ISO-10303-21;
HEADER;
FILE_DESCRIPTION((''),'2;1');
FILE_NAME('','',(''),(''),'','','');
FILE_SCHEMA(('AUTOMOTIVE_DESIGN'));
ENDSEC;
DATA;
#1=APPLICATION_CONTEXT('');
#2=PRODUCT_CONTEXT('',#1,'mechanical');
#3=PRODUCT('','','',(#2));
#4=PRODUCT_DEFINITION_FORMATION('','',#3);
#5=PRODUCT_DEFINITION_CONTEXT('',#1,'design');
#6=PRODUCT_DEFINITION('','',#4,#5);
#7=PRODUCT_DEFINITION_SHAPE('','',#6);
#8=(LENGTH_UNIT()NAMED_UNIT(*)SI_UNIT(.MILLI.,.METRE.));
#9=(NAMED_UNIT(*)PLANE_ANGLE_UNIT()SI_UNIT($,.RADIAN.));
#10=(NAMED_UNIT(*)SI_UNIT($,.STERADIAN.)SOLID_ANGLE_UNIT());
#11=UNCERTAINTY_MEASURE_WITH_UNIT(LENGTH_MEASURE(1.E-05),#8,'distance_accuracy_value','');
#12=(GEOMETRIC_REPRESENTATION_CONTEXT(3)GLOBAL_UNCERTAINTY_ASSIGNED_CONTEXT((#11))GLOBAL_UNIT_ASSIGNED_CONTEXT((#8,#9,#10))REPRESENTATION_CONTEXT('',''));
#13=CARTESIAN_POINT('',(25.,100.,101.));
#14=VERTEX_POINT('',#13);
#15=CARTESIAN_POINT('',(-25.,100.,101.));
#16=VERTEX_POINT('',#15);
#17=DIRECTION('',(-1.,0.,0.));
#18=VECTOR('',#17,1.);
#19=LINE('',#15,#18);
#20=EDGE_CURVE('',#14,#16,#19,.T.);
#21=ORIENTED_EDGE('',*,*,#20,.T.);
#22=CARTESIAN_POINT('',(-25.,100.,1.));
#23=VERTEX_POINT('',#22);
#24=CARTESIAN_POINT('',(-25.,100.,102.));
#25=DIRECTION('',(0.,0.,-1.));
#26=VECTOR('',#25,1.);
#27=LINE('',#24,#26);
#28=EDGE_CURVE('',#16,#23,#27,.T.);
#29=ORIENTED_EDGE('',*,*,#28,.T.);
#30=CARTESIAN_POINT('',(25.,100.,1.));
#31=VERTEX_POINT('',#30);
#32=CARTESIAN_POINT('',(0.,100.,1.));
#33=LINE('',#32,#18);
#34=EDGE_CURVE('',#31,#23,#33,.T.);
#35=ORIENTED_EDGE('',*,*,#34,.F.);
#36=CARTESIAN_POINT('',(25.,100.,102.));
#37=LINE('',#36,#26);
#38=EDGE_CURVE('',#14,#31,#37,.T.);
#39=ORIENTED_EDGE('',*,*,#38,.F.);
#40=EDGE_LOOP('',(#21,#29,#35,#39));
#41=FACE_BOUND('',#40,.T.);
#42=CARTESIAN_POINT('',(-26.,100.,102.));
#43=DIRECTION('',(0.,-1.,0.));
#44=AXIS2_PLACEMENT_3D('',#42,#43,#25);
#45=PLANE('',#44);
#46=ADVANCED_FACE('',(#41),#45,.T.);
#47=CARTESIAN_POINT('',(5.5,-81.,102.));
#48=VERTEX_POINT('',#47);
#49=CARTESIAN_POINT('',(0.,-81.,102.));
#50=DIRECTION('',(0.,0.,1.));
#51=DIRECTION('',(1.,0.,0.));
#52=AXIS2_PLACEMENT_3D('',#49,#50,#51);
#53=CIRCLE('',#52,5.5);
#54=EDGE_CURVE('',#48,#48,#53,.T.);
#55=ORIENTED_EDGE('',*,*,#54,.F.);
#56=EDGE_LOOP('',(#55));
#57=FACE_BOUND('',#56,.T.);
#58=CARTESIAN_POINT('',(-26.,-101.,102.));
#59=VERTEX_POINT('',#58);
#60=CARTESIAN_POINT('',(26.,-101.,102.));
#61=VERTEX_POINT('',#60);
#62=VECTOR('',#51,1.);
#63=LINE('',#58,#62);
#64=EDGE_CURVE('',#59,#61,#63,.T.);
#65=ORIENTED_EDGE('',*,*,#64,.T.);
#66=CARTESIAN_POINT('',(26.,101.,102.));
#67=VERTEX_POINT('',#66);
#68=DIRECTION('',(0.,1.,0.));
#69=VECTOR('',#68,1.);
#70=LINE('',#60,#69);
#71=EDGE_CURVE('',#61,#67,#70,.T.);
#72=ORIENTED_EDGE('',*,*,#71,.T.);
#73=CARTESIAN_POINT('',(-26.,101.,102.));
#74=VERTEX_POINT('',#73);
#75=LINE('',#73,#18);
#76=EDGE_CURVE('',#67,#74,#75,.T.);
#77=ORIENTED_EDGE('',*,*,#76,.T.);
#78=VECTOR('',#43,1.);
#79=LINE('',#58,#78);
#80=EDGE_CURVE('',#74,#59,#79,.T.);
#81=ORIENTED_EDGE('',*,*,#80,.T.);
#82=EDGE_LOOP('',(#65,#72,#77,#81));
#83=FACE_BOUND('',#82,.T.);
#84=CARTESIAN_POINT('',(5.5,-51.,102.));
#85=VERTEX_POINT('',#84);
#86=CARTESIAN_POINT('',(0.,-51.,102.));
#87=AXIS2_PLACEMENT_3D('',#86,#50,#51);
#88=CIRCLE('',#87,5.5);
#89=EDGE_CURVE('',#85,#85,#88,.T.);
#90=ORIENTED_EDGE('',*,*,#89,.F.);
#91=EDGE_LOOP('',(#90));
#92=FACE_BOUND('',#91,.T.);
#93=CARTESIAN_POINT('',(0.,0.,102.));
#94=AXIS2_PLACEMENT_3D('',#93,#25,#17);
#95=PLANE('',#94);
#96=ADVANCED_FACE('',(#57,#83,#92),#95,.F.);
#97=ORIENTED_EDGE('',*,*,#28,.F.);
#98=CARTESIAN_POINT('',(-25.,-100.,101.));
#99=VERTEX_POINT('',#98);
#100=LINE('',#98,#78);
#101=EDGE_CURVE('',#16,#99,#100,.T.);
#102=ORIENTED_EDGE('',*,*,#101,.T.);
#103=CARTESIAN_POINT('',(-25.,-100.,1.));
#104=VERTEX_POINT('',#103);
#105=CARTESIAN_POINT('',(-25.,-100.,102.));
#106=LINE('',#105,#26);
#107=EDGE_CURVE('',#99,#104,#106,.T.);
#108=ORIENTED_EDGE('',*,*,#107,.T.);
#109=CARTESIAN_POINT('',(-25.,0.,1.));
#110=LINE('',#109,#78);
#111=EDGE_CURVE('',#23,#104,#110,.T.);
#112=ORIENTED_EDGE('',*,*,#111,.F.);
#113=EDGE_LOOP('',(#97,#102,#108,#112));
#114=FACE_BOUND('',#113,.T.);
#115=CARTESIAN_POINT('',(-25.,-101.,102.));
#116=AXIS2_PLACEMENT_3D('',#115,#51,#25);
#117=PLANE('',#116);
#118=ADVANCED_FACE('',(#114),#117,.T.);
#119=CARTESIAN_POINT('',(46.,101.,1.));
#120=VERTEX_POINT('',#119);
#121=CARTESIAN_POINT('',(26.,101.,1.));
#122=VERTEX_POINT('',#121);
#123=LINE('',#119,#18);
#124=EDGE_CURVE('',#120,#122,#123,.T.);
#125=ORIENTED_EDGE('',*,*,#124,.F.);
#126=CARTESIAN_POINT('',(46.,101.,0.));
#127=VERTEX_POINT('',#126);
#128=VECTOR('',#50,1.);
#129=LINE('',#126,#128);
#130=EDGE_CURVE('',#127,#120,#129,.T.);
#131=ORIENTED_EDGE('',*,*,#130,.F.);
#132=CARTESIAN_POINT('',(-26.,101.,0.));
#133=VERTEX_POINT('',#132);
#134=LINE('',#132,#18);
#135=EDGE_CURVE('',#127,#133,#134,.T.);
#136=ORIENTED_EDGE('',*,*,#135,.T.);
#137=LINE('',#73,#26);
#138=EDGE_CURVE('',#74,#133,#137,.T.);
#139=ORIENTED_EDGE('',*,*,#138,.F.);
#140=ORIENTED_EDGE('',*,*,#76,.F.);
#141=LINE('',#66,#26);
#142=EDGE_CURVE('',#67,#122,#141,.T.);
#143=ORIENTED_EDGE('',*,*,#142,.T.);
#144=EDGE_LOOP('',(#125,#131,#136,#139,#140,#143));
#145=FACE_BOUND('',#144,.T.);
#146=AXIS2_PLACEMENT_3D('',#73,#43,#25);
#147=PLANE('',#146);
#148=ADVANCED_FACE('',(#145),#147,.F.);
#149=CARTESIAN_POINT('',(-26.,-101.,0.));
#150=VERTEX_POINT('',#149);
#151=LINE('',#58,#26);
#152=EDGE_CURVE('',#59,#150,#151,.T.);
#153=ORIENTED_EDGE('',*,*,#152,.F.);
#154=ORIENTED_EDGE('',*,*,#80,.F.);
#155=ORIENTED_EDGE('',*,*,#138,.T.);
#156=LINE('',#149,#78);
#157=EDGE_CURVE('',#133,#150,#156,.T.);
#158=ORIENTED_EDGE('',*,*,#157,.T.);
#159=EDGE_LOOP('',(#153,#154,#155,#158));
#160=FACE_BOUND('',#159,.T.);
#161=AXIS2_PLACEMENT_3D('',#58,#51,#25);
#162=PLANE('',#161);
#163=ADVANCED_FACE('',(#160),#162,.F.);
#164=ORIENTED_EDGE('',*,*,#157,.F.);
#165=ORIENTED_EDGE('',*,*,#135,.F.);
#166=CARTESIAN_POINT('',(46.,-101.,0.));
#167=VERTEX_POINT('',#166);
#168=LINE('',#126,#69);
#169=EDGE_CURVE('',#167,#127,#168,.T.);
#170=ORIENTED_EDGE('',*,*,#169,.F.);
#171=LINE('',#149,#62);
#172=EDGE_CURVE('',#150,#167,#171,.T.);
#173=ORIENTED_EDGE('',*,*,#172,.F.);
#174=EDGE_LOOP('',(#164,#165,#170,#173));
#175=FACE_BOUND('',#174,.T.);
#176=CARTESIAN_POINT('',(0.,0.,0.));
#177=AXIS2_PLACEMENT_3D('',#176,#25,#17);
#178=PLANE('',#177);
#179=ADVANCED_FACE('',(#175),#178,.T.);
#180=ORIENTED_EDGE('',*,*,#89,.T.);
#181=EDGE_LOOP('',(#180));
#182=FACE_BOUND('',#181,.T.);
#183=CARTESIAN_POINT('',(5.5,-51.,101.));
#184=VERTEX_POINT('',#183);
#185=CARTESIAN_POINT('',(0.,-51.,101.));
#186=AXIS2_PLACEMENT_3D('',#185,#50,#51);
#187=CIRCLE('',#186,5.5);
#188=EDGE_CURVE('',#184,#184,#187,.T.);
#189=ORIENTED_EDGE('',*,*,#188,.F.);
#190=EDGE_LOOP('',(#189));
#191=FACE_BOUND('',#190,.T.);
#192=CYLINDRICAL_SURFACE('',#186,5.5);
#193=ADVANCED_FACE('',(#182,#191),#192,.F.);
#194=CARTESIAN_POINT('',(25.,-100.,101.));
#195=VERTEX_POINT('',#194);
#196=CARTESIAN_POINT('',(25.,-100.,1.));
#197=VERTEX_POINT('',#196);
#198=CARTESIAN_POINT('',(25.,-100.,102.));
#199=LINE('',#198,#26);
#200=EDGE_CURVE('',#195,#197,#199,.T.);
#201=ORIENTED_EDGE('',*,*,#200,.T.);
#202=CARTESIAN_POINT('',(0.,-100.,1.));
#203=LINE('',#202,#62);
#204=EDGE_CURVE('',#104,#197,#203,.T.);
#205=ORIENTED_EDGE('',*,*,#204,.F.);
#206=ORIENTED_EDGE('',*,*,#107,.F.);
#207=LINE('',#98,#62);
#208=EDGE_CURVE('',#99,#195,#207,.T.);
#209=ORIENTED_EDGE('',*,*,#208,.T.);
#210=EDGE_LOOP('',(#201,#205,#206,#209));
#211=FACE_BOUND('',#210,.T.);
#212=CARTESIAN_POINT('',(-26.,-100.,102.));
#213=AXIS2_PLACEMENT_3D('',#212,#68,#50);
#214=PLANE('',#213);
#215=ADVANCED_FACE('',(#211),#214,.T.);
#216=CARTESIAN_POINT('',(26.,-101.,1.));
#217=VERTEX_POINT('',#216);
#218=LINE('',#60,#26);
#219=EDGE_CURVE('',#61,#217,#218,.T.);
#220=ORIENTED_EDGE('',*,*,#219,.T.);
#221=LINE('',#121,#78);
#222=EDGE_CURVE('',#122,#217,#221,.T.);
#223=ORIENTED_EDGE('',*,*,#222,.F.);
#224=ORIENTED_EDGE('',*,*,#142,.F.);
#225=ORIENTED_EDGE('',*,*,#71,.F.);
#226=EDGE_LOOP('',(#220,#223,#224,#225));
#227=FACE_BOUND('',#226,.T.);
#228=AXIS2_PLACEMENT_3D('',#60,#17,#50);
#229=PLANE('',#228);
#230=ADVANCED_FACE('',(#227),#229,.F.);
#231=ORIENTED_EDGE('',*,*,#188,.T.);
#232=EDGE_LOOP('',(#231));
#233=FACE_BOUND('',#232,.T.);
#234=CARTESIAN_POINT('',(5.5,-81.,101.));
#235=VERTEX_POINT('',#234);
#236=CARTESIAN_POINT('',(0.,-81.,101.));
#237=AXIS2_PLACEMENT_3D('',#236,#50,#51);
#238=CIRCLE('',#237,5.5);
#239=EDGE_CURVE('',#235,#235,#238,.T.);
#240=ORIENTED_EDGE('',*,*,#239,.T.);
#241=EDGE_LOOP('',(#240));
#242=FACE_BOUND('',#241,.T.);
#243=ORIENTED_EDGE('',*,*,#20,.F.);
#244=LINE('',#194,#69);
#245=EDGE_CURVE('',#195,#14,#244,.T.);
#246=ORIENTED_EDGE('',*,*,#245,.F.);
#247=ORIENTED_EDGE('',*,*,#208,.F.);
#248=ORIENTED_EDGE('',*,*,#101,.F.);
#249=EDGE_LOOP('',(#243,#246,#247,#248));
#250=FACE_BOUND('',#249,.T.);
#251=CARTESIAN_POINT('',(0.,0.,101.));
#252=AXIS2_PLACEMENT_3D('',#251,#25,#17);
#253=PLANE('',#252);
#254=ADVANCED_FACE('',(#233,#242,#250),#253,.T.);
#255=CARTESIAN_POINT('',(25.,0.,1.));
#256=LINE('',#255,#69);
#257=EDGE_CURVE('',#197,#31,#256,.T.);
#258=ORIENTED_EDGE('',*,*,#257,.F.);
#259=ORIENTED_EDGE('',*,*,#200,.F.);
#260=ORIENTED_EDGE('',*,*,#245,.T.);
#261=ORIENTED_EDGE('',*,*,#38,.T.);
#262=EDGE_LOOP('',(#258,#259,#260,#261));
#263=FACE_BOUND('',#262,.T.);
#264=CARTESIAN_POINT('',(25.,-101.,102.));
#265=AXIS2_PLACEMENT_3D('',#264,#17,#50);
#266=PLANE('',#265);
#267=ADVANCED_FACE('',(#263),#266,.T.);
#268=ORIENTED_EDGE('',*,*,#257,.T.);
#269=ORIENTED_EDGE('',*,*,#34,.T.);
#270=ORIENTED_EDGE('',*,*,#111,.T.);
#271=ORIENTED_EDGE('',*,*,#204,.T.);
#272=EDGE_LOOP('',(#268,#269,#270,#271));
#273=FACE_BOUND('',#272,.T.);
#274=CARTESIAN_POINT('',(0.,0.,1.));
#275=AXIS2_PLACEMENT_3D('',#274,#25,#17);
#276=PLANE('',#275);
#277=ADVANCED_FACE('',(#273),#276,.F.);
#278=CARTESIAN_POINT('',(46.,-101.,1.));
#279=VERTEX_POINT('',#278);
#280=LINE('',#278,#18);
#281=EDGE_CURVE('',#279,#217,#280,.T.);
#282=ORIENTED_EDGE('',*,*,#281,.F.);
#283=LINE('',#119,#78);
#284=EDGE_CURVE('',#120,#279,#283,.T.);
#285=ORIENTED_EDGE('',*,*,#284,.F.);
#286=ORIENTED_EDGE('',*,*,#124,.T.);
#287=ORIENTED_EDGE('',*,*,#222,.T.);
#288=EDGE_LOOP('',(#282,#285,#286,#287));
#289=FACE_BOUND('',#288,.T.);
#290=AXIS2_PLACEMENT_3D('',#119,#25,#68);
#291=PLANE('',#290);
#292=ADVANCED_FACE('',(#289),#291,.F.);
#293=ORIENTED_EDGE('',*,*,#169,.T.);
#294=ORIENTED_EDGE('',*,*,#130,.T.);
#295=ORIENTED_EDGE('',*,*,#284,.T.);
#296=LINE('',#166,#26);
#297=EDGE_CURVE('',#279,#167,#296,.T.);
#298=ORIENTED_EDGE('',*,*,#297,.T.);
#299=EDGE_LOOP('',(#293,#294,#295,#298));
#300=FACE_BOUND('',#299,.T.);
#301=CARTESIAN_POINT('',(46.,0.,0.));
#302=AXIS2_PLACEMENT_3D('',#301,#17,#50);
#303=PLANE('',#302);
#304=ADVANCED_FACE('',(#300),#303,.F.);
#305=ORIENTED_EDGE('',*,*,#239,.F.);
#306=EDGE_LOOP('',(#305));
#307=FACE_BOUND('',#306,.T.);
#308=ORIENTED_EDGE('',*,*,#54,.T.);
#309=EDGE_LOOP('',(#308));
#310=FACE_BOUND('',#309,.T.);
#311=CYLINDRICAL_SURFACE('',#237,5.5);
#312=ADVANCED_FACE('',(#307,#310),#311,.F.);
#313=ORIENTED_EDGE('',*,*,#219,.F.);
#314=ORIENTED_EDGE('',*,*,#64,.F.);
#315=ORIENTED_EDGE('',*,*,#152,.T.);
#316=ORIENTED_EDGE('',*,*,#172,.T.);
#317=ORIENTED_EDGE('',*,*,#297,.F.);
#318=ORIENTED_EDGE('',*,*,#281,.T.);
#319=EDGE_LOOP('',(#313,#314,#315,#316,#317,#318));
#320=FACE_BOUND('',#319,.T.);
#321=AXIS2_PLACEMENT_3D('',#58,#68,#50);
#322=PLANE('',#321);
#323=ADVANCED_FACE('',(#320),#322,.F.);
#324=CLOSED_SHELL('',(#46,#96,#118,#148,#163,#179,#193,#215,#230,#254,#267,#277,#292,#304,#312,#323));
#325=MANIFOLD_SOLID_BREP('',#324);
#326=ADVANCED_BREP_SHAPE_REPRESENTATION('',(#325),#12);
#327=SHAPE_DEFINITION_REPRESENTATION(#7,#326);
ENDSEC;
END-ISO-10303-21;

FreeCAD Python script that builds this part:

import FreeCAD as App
import Part
import Sketcher

V = App.Vector
Q = App.Units.Quantity


def faces_at(feature, points):
    """Names of the faces that lie closest to the given points."""
    faces = feature.Shape.Faces
    near = lambda p: min(range(len(faces)), key=lambda i: faces[i].distToShape(Part.Vertex(*p))[0])
    return sorted({f"Face{near(p) + 1}" for p in points})


def add_polygon(sketch, points):
    """Adds a closed chain of lines whose ends are joined by coincident constraints."""
    first, n = sketch.GeometryCount, len(points)
    for a, b in zip(points, points[1:] + points[:1]):
        sketch.addGeometry(Part.LineSegment(App.Vector(*a, 0), App.Vector(*b, 0)), False)
    for i in range(n):
        sketch.addConstraint(Sketcher.Constraint("Coincident", first + i, 2, first + (i + 1) % n, 1))

doc = App.newDocument("Part")
body = doc.addObject("PartDesign::Body", "Body")

sketch1 = doc.addObject("Sketcher::SketchObject", "Sketch")
body.addObject(sketch1)
sketch1.AttachmentSupport = (doc.XY_Plane, [""])
sketch1.MapMode = "FlatFace"
add_polygon(sketch1, [(-26, 101), (-26, -101), (26, -101), (26, 101)])
sketch1.addConstraint(Sketcher.Constraint("Vertical", 0))
sketch1.addConstraint(Sketcher.Constraint("Horizontal", 1))
sketch1.addConstraint(Sketcher.Constraint("Vertical", 2))
sketch1.addConstraint(Sketcher.Constraint("Horizontal", 3))
sketch1.addConstraint(Sketcher.Constraint("Symmetric", 0, 2, 2, 2, -1, 1))
sketch1.addConstraint(Sketcher.Constraint("DistanceX", 1, 1, 1, 2, Q("52 mm")))
sketch1.addConstraint(Sketcher.Constraint("DistanceY", 0, 2, 0, 1, Q("202 mm")))
pad1 = doc.addObject("PartDesign::Pad", "Pad")
body.addObject(pad1)
pad1.Profile = sketch1
pad1.Length = 102
doc.recompute()

thickness = doc.addObject("PartDesign::Thickness", "Thickness")
body.addObject(thickness)
thickness.Base = (pad1, faces_at(pad1, [(0, 0, 102)]))
thickness.Value = 1
thickness.Reversed = True
thickness.Join = "Intersection"

sketch2 = doc.addObject("Sketcher::SketchObject", "Sketch001")
body.addObject(sketch2)
sketch2.AttachmentSupport = (doc.XY_Plane, [""])
sketch2.MapMode = "FlatFace"
sketch2.AttachmentOffset = App.Placement(V(0, 0, 102), App.Rotation())
add_polygon(sketch2, [(-25, 100), (-25, -100), (25, -100), (25, 100)])
sketch2.addConstraint(Sketcher.Constraint("Vertical", 0))
sketch2.addConstraint(Sketcher.Constraint("Horizontal", 1))
sketch2.addConstraint(Sketcher.Constraint("Vertical", 2))
sketch2.addConstraint(Sketcher.Constraint("Horizontal", 3))
sketch2.addConstraint(Sketcher.Constraint("Symmetric", 0, 2, 2, 2, -1, 1))
sketch2.addConstraint(Sketcher.Constraint("DistanceX", 1, 1, 1, 2, Q("50 mm")))
sketch2.addConstraint(Sketcher.Constraint("DistanceY", 0, 2, 0, 1, Q("200 mm")))
pad2 = doc.addObject("PartDesign::Pad", "Pad001")
body.addObject(pad2)
pad2.Profile = sketch2
pad2.Length = 1
pad2.Reversed = True

sketch3 = doc.addObject("Sketcher::SketchObject", "Sketch002")
body.addObject(sketch3)
sketch3.AttachmentSupport = (doc.XY_Plane, [""])
sketch3.MapMode = "FlatFace"
sketch3.AttachmentOffset = App.Placement(V(0, 0, 102), App.Rotation())
sketch3.addGeometry(Part.Circle(V(0, -81, 0), V(0, 0, 1), 6), False)
sketch3.addGeometry(Part.Circle(V(0, -51, 0), V(0, 0, 1), 6), False)
sketch3.addConstraint(Sketcher.Constraint("Equal", 0, 1))
sketch3.addConstraint(Sketcher.Constraint("PointOnObject", 0, 3, -2))
sketch3.addConstraint(Sketcher.Constraint("PointOnObject", 1, 3, -2))
sketch3.addConstraint(Sketcher.Constraint("Diameter", 0, Q("11 mm")))
sketch3.addConstraint(Sketcher.Constraint("DistanceY", 0, 3, -1, 1, Q("81 mm")))
sketch3.addConstraint(Sketcher.Constraint("DistanceY", 1, 3, -1, 1, Q("51 mm")))
pocket1 = doc.addObject("PartDesign::Pocket", "Pocket")
body.addObject(pocket1)
pocket1.Profile = sketch3
pocket1.Length = 1

sketch4 = doc.addObject("Sketcher::SketchObject", "Sketch003")
body.addObject(sketch4)
sketch4.AttachmentSupport = (doc.YZ_Plane, [""])
sketch4.MapMode = "FlatFace"
sketch4.AttachmentOffset = App.Placement(V(0, 0, 26), App.Rotation())
add_polygon(sketch4, [(101, 1), (-101, 1), (-101, 0), (101, 0)])
sketch4.addConstraint(Sketcher.Constraint("Horizontal", 0))
sketch4.addConstraint(Sketcher.Constraint("Vertical", 1))
sketch4.addConstraint(Sketcher.Constraint("Horizontal", 2))
sketch4.addConstraint(Sketcher.Constraint("Vertical", 3))
sketch4.addConstraint(Sketcher.Constraint("Symmetric", 1, 2, 2, 2, -1, 1))
sketch4.addConstraint(Sketcher.Constraint("DistanceX", 0, 2, 0, 1, Q("202 mm")))
sketch4.addConstraint(Sketcher.Constraint("DistanceY", 1, 2, 1, 1, Q("1 mm")))
pad3 = doc.addObject("PartDesign::Pad", "Pad002")
body.addObject(pad3)
pad3.Profile = sketch4
pad3.Length = 20

doc.recompute()
